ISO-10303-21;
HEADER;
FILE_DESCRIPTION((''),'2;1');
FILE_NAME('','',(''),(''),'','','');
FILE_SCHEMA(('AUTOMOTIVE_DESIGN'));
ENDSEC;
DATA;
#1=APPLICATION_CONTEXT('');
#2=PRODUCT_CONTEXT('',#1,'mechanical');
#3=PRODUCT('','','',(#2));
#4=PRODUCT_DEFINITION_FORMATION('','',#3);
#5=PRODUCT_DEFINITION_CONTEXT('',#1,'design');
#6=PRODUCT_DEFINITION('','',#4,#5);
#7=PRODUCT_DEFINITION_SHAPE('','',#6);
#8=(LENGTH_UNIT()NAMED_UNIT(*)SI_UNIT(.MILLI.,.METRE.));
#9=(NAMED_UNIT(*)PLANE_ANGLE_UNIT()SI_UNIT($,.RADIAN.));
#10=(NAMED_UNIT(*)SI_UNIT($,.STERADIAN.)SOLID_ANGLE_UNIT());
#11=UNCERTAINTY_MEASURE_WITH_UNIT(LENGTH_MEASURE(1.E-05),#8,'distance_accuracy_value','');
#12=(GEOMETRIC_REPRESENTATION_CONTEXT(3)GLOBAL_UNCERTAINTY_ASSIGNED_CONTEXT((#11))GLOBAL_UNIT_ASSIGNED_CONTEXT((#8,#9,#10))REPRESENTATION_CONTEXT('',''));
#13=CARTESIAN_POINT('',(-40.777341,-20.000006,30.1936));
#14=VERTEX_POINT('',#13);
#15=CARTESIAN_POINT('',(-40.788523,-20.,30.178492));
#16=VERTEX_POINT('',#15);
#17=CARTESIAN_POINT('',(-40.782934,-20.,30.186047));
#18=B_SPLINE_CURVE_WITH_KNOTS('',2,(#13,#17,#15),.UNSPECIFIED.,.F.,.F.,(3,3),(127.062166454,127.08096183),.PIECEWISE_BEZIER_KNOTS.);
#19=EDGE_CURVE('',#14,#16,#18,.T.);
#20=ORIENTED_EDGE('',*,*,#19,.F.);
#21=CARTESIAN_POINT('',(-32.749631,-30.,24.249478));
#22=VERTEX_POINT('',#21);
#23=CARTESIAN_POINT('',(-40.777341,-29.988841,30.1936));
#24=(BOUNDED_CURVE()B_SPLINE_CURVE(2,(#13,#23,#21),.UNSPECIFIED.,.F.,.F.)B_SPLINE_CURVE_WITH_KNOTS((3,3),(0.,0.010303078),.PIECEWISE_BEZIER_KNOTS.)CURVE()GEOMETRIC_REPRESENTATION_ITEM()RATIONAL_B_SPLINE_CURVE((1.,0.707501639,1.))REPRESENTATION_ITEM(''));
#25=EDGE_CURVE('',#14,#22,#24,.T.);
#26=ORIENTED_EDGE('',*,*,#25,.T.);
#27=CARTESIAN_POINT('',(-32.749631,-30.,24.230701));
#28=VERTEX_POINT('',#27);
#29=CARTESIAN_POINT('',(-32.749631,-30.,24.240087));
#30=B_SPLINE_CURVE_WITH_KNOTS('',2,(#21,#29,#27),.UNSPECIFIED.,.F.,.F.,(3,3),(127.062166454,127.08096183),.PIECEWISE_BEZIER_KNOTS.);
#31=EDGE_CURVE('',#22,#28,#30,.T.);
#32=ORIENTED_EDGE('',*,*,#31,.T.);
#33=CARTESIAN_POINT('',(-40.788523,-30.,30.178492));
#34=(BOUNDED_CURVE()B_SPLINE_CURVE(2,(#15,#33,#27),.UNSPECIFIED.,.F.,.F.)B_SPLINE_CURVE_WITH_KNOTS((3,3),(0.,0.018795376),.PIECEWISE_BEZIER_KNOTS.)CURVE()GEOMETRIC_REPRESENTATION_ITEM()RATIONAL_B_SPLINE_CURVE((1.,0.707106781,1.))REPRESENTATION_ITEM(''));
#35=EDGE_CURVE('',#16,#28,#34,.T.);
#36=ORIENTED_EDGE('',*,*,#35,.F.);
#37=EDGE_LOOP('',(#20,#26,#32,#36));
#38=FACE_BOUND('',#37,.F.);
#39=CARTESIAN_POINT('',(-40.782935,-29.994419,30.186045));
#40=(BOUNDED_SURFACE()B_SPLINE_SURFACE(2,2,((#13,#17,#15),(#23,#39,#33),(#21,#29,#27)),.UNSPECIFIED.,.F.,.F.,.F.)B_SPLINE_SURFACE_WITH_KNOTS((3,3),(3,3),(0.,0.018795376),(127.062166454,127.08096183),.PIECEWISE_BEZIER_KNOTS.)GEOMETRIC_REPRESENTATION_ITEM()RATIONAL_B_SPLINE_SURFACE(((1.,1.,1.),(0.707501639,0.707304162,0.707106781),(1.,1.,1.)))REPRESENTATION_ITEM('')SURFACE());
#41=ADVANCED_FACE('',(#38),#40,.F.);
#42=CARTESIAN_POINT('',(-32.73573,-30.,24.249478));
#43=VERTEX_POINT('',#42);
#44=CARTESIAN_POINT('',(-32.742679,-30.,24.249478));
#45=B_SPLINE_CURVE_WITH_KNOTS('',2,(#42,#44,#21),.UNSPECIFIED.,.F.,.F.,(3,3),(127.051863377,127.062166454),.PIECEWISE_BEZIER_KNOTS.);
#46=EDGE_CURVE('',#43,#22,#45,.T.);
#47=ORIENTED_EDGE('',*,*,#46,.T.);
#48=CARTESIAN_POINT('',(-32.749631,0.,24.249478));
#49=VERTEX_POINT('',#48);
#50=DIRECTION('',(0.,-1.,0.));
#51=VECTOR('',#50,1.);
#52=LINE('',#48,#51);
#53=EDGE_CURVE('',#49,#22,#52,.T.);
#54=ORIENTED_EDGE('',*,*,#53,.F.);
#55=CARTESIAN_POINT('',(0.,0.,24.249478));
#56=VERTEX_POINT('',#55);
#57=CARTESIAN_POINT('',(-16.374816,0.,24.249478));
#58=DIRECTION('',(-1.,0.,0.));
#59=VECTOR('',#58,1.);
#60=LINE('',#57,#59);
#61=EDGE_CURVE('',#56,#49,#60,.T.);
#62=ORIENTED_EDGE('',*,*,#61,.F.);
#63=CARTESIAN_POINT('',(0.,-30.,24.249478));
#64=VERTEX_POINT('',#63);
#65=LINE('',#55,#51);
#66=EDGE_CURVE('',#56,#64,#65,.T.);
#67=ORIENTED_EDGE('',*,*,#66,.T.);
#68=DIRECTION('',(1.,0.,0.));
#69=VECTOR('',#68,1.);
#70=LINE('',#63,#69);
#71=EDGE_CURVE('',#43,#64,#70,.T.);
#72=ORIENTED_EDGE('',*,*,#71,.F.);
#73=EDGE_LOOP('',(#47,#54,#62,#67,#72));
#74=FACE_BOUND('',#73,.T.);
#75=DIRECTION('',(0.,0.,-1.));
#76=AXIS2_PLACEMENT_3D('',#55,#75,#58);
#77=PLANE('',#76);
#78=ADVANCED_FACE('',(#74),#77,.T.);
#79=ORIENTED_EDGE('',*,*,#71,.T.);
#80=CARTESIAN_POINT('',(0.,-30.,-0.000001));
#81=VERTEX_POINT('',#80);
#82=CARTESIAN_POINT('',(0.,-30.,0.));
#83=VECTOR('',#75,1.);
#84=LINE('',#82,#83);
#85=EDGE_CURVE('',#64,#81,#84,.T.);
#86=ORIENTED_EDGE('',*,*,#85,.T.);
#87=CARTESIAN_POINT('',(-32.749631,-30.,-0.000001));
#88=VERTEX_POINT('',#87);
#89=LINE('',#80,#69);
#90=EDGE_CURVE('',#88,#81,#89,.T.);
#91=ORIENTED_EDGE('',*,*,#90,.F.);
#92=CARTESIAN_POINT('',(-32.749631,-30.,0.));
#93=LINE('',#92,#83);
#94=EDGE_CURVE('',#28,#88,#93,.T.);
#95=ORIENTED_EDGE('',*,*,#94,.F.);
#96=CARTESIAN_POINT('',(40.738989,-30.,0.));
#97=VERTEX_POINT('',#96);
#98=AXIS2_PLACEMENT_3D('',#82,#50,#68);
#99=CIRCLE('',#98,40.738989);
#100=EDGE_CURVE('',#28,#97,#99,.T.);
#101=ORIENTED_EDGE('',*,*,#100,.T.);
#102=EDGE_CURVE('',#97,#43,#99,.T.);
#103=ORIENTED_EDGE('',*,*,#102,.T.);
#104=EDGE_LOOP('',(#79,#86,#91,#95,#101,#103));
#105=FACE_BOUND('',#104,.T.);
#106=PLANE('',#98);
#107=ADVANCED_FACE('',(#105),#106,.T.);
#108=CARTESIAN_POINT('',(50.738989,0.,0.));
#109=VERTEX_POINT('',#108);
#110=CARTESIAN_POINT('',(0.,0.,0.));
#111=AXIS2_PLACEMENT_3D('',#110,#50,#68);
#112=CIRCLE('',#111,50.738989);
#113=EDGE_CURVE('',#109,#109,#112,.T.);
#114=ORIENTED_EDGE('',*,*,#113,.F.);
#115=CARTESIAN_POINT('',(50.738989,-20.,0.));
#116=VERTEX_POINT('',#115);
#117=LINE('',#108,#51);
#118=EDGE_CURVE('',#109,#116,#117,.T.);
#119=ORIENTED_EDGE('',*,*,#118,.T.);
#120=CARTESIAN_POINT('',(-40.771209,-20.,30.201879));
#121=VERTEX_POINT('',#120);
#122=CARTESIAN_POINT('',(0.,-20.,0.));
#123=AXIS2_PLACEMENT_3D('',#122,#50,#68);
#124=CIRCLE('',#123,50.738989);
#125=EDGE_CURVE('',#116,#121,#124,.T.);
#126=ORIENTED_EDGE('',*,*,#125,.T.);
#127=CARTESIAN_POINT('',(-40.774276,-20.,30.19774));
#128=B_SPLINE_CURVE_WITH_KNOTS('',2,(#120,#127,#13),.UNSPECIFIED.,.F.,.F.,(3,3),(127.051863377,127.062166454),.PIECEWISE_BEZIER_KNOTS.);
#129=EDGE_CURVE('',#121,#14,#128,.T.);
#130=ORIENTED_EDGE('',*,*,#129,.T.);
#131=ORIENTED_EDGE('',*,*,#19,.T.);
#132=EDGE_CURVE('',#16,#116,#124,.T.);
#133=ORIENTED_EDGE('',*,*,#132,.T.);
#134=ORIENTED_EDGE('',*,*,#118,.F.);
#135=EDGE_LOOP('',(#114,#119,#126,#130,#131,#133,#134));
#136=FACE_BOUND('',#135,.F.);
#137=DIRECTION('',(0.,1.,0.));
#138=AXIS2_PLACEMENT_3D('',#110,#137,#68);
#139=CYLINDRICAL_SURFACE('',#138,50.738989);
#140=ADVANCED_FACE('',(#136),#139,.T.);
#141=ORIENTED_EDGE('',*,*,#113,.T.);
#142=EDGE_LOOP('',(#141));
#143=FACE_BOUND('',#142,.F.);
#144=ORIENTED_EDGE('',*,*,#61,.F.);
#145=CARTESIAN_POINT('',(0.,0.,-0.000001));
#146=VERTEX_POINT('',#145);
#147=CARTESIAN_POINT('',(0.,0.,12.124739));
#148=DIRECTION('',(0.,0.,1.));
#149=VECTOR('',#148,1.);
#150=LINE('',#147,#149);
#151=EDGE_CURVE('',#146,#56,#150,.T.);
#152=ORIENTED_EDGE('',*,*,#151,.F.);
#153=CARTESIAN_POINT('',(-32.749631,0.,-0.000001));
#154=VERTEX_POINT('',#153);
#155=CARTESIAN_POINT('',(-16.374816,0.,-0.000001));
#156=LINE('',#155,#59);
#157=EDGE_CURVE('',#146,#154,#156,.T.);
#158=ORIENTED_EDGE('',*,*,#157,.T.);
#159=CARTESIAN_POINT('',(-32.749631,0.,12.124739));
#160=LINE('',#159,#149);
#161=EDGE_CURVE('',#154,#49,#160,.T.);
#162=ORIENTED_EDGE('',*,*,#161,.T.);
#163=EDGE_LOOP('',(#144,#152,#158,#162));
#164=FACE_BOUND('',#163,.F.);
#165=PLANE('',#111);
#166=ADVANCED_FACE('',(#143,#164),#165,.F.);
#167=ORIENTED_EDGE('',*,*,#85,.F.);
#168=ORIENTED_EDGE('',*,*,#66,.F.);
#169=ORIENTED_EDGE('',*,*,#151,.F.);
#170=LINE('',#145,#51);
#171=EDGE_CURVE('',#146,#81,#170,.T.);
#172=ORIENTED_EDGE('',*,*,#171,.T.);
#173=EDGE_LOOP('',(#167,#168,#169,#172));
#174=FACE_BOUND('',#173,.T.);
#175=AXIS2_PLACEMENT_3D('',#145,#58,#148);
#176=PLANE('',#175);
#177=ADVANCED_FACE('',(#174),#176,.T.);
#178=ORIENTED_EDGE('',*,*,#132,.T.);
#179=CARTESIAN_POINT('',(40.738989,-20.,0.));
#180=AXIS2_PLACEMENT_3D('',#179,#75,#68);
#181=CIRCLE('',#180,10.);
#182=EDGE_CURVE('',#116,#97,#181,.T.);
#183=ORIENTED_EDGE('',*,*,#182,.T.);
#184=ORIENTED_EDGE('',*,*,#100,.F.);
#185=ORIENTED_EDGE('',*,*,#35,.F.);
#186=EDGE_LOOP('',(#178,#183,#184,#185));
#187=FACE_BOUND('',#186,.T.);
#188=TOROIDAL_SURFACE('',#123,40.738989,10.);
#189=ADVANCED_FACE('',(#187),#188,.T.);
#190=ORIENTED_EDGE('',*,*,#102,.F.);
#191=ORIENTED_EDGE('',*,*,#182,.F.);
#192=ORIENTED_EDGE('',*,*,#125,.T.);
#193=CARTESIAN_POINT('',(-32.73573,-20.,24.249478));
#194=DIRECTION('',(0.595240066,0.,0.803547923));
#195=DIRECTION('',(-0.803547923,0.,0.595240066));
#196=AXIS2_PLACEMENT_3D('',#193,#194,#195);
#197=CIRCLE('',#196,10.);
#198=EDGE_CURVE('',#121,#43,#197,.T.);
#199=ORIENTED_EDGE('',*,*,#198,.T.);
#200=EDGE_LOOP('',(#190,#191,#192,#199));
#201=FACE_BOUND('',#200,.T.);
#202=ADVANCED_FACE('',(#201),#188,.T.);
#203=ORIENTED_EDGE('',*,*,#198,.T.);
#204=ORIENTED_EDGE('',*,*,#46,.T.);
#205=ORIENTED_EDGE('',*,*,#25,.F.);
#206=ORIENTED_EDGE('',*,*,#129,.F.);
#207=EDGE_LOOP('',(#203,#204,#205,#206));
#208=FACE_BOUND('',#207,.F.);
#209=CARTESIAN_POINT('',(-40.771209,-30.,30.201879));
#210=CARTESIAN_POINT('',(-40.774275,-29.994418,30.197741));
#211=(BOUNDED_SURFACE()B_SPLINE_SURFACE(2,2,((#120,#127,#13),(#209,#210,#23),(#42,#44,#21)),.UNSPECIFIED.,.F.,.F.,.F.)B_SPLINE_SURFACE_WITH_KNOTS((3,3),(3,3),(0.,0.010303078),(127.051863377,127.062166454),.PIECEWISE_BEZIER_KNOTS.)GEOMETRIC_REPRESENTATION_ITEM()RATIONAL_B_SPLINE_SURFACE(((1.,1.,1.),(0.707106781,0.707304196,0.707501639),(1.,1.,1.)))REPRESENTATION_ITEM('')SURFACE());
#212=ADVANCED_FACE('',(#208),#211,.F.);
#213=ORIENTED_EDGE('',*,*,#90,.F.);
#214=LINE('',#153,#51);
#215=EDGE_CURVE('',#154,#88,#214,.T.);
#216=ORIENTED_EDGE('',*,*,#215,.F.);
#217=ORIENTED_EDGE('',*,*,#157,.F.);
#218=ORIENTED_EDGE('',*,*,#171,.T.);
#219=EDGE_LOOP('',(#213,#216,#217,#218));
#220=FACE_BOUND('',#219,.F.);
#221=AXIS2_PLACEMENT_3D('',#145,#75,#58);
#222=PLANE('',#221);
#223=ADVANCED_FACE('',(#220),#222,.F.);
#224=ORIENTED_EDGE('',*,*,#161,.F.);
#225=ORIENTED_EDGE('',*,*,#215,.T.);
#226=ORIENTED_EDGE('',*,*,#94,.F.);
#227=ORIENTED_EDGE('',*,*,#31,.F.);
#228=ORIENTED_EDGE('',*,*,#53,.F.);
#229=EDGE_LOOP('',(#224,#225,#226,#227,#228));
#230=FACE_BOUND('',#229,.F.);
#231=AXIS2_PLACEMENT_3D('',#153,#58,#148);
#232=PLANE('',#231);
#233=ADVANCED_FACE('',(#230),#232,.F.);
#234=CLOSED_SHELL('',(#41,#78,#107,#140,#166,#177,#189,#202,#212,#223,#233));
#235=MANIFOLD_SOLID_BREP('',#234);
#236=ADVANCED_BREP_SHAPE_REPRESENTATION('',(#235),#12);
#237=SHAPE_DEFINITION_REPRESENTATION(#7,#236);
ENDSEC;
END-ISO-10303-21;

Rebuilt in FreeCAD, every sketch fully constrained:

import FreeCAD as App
import Part
import Sketcher
from FreeCAD import Vector
Q = App.Units.Quantity


def edges_at(feature, points):
    """Names of the edges that pass closest to the given points."""
    edges = feature.Shape.Edges
    near = lambda p: min(range(len(edges)), key=lambda i: edges[i].distToShape(Part.Vertex(*p))[0])
    return sorted({f"Edge{near(p) + 1}" for p in points})


def add_polygon(sketch, points):
    """Adds a closed chain of lines whose ends are joined by coincident constraints."""
    first, n = sketch.GeometryCount, len(points)
    for a, b in zip(points, points[1:] + points[:1]):
        sketch.addGeometry(Part.LineSegment(App.Vector(*a, 0), App.Vector(*b, 0)), False)
    for i in range(n):
        sketch.addConstraint(Sketcher.Constraint("Coincident", first + i, 2, first + (i + 1) % n, 1))

doc = App.newDocument("Part")
body = doc.addObject("PartDesign::Body", "Body")

sketch1 = doc.addObject("Sketcher::SketchObject", "Sketch")
body.addObject(sketch1)
sketch1.AttachmentSupport = (doc.XZ_Plane, [""])
sketch1.MapMode = "FlatFace"
sketch1.addGeometry(Part.Circle(Vector(0, 0, 0), Vector(0, 0, 1), 51), False)
sketch1.addConstraint([
    Sketcher.Constraint("Coincident", 0, 3, -1, 1),
    Sketcher.Constraint("Diameter", 0, Q("101.477978 mm")),
])
pad1 = doc.addObject("PartDesign::Pad", "Pad")
body.addObject(pad1)
pad1.Profile = sketch1
pad1.Length = 30

sketch2 = doc.addObject("Sketcher::SketchObject", "Sketch001")
body.addObject(sketch2)
sketch2.AttachmentSupport = (doc.XZ_Plane, [""])
sketch2.MapMode = "FlatFace"
add_polygon(sketch2, [(0, 24), (0, 0), (-33, 0), (-33, 24)])
sketch2.addConstraint([
    Sketcher.Constraint("Vertical", 0),
    Sketcher.Constraint("Horizontal", 1),
    Sketcher.Constraint("Vertical", 2),
    Sketcher.Constraint("Horizontal", 3),
    Sketcher.Constraint("Coincident", 0, 2, -1, 1),
    Sketcher.Constraint("DistanceX", 1, 2, 1, 1, Q("32.749631 mm")),
    Sketcher.Constraint("DistanceY", 0, 2, 0, 1, Q("24.249479 mm")),
])
pocket1 = doc.addObject("PartDesign::Pocket", "Pocket")
body.addObject(pocket1)
pocket1.Profile = sketch2
pocket1.Length = 96.840864
pocket1.Reversed = True
doc.recompute()

fillet = doc.addObject("PartDesign::Fillet", "Fillet")
body.addObject(fillet)
fillet.Base = (pocket1, edges_at(pocket1, [(-50.739, -30, 0)]))
fillet.Radius = 10

doc.recompute()
